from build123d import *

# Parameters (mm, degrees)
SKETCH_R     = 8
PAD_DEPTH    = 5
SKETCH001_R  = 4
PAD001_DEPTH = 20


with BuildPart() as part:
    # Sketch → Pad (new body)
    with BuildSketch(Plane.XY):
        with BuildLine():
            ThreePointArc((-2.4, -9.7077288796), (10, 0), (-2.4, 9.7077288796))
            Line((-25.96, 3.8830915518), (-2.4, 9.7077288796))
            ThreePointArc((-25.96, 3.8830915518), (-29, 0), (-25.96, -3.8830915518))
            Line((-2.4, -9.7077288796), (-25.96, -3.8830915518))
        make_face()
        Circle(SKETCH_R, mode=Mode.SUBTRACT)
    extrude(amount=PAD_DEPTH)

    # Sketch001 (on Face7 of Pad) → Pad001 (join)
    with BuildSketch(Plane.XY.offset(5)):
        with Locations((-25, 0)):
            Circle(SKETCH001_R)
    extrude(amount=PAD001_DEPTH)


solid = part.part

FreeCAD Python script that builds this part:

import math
import FreeCAD as App
import Part
import Sketcher
Q = App.Units.Quantity

doc = App.newDocument("Part")
body = doc.addObject("PartDesign::Body", "Body")

sketch1 = body.newObject("Sketcher::SketchObject", "Sketch")
sketch1.AttachmentSupport = (doc.getObject("XY_Plane"), [""])
sketch1.MapMode = "FlatFace"
sketch1.addGeometry([
    Part.ArcOfCircle(Part.Circle(App.Vector(0, 0, 0), App.Vector(0, 0, 1), 10), math.radians(-104), math.radians(104)),
    Part.LineSegment(App.Vector(-2.4, 9.7, 0), App.Vector(-26, 3.9, 0)),
    Part.ArcOfCircle(Part.Circle(App.Vector(-25, 0, 0), App.Vector(0, 0, 1), 4), math.radians(104), math.radians(256)),
    Part.LineSegment(App.Vector(-26, -3.9, 0), App.Vector(-2.4, -9.7, 0)),
    Part.Circle(App.Vector(0, 0, 0), App.Vector(0, 0, 1), 8),
], False)
sketch1.addConstraint([
    Sketcher.Constraint("Tangent", 0, 2, 1, 1),
    Sketcher.Constraint("Tangent", 1, 2, 2, 1),
    Sketcher.Constraint("Tangent", 2, 2, 3, 1),
    Sketcher.Constraint("Tangent", 3, 2, 0, 1),
    Sketcher.Constraint("Coincident", 0, 3, -1, 1),
    Sketcher.Constraint("Coincident", 4, 3, -1, 1),
    Sketcher.Constraint("PointOnObject", 2, 3, -1),
    Sketcher.Constraint("Diameter", 4, Q("16 mm")),
    Sketcher.Constraint("Radius", 0, Q("10 mm")),
    Sketcher.Constraint("Radius", 2, Q("4 mm")),
    Sketcher.Constraint("DistanceX", 2, 3, -1, 1, Q("25 mm")),
])
pad1 = body.newObject("PartDesign::Pad", "Pad")
pad1.Profile = sketch1
pad1.Length = 5

sketch2 = body.newObject("Sketcher::SketchObject", "Sketch001")
sketch2.AttachmentSupport = (doc.getObject("XY_Plane"), [""])
sketch2.MapMode = "FlatFace"
sketch2.AttachmentOffset = App.Placement(App.Vector(0, 0, 5), App.Rotation())
sketch2.addGeometry(Part.Circle(App.Vector(-25, 0, 0), App.Vector(0, 0, 1), 4), False)
sketch2.addConstraint([
    Sketcher.Constraint("PointOnObject", 0, 3, -1),
    Sketcher.Constraint("Diameter", 0, Q("8 mm")),
    Sketcher.Constraint("DistanceX", 0, 3, -1, 1, Q("25 mm")),
])
pad2 = body.newObject("PartDesign::Pad", "Pad001")
pad2.Profile = sketch2
pad2.Length = 20

doc.recompute()
